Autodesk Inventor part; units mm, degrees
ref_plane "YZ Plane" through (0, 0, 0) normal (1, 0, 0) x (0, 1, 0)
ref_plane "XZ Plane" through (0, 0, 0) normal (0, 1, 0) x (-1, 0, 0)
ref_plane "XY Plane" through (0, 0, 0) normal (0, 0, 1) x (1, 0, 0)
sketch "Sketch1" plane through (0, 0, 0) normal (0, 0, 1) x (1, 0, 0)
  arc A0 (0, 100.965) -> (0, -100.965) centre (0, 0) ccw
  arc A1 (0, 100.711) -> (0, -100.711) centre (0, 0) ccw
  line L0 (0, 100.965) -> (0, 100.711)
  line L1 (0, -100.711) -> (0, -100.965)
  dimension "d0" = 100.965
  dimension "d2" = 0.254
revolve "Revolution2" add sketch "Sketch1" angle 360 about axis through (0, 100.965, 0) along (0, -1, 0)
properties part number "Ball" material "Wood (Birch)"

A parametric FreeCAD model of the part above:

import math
import FreeCAD as App
import Part
import Sketcher
Q = App.Units.Quantity

doc = App.newDocument("Part")
body = doc.addObject("PartDesign::Body", "Body")

# Sketch on XY plane
sketch1 = body.newObject("Sketcher::SketchObject", "Sketch")
sketch1.AttachmentSupport = (doc.getObject("XY_Plane"), [""])
sketch1.MapMode = "FlatFace"
sketch1.addGeometry([
    Part.LineSegment(App.Vector(0, 100.71, 0), App.Vector(0, 100.97, 0)),
    Part.ArcOfCircle(Part.Circle(App.Vector(0, 0, 0), App.Vector(0, 0, 1), 100.97), math.radians(90), math.radians(270)),
    Part.LineSegment(App.Vector(0, -100.97, 0), App.Vector(0, -100.71, 0)),
    Part.ArcOfCircle(Part.Circle(App.Vector(0, 0, 0), App.Vector(0, 0, 1), 100.71), math.radians(90), math.radians(270)),
], False)
sketch1.addConstraint([
    Sketcher.Constraint("Coincident", 0, 2, 1, 1),
    Sketcher.Constraint("Coincident", 1, 2, 2, 1),
    Sketcher.Constraint("Coincident", 2, 2, 3, 2),
    Sketcher.Constraint("Coincident", 3, 1, 0, 1),
    Sketcher.Constraint("Vertical", 0),
    Sketcher.Constraint("Vertical", 2),
    Sketcher.Constraint("Coincident", 1, 3, -1, 1),
    Sketcher.Constraint("Coincident", 3, 3, -1, 1),
    Sketcher.Constraint("PointOnObject", 0, 2, -2),
    Sketcher.Constraint("PointOnObject", 1, 2, -2),
    Sketcher.Constraint("Radius", 1, Q("3.975 in")),
    Sketcher.Constraint("DistanceY", 0, 1, 0, 2, Q("0.01 in")),
])
revolution = body.newObject("PartDesign::Revolution", "Revolution")
revolution.Profile = sketch1
revolution.ReferenceAxis = (sketch1, ["V_Axis"])
revolution.Angle = 360

doc.recompute()
